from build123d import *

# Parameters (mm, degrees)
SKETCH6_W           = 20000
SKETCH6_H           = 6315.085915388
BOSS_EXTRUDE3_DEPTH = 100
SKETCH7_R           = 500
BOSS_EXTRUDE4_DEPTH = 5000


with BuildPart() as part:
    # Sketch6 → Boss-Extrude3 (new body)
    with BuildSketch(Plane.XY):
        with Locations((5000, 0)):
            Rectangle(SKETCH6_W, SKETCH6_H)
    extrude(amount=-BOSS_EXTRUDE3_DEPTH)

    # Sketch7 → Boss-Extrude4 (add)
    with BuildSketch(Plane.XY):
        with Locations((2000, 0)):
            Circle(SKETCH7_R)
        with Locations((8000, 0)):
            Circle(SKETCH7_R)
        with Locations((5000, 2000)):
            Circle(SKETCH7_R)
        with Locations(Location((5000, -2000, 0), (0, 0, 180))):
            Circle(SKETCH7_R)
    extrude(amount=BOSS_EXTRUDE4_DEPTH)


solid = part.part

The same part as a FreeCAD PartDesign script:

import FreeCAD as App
import Part
import Sketcher
from FreeCAD import Vector

doc = App.newDocument("Part")
body = doc.addObject("PartDesign::Body", "Body")

# Sketch on XY plane
sketch1 = body.newObject("Sketcher::SketchObject", "Sketch")
sketch1.AttachmentSupport = (doc.getObject("XY_Plane"), [""])
sketch1.MapMode = "FlatFace"
sketch1.addGeometry([
    Part.LineSegment(Vector(-5000, 3158, 0), Vector(-5000, -3158, 0)),
    Part.LineSegment(Vector(-5000, -3158, 0), Vector(15000, -3158, 0)),
    Part.LineSegment(Vector(15000, -3158, 0), Vector(15000, 3158, 0)),
    Part.LineSegment(Vector(15000, 3158, 0), Vector(-5000, 3158, 0)),
], False)
sketch1.addConstraint([
    Sketcher.Constraint("Coincident", 0, 2, 1, 1),
    Sketcher.Constraint("Coincident", 1, 2, 2, 1),
    Sketcher.Constraint("Coincident", 2, 2, 3, 1),
    Sketcher.Constraint("Coincident", 3, 2, 0, 1),
    Sketcher.Constraint("Vertical", 0),
    Sketcher.Constraint("Horizontal", 1),
    Sketcher.Constraint("Vertical", 2),
    Sketcher.Constraint("Horizontal", 3),
    Sketcher.Constraint("DistanceX", 1, 1, 1, 2, 20000.0),
    Sketcher.Constraint("DistanceX", 0, 2, -1, 1, 5000.0),
    Sketcher.Constraint("DistanceY", 0, 2, 0, 1, 6315.085915),
    Sketcher.Constraint("DistanceY", 0, 2, -1, 1, 3157.542958),
])
pad1 = body.newObject("PartDesign::Pad", "Pad")
pad1.Profile = sketch1
pad1.Length = 100
pad1.Reversed = True

# Sketch on XY plane
sketch2 = body.newObject("Sketcher::SketchObject", "Sketch001")
sketch2.AttachmentSupport = (doc.getObject("XY_Plane"), [""])
sketch2.MapMode = "FlatFace"
sketch2.addGeometry([
    Part.Circle(Vector(2000, 0, 0), Vector(0, 0, 1), 500),
    Part.Circle(Vector(8000, 0, 0), Vector(0, 0, 1), 500),
    Part.Circle(Vector(5000, 2000, 0), Vector(0, 0, 1), 500),
    Part.Circle(Vector(5000, -2000, 0), Vector(0, 0, 1), 500),
], False)
sketch2.addConstraint([
    Sketcher.Constraint("Equal", 0, 1),
    Sketcher.Constraint("Equal", 1, 2),
    Sketcher.Constraint("Equal", 2, 3),
    Sketcher.Constraint("Symmetric", 2, 3, 3, 3, -1),
    Sketcher.Constraint("PointOnObject", 0, 3, -1),
    Sketcher.Constraint("PointOnObject", 1, 3, -1),
    Sketcher.Constraint("Diameter", 0, 1000.0),
    Sketcher.Constraint("DistanceX", -1, 1, 0, 3, 2000.0),
    Sketcher.Constraint("DistanceX", -1, 1, 1, 3, 8000.0),
    Sketcher.Constraint("DistanceX", -1, 1, 2, 3, 5000.0),
    Sketcher.Constraint("DistanceY", -1, 1, 2, 3, 2000.0),
])
pad2 = body.newObject("PartDesign::Pad", "Pad001")
pad2.Profile = sketch2
pad2.Length = 5000

doc.recompute()
